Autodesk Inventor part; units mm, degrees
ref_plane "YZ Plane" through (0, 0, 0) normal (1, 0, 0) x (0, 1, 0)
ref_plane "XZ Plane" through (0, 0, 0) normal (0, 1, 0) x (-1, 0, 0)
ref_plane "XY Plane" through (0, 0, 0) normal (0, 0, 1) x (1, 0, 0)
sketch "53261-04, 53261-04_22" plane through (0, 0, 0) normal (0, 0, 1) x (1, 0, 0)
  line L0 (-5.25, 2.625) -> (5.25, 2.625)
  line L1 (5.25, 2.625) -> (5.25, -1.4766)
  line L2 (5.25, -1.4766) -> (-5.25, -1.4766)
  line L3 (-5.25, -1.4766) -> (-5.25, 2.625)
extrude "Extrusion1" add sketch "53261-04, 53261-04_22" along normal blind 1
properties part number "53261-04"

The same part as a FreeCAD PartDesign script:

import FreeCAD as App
import Part
import Sketcher

V = App.Vector
Q = App.Units.Quantity


def add_polygon(sketch, points):
    """Adds a closed chain of lines whose ends are joined by coincident constraints."""
    first, n = sketch.GeometryCount, len(points)
    for a, b in zip(points, points[1:] + points[:1]):
        sketch.addGeometry(Part.LineSegment(App.Vector(*a, 0), App.Vector(*b, 0)), False)
    for i in range(n):
        sketch.addConstraint(Sketcher.Constraint("Coincident", first + i, 2, first + (i + 1) % n, 1))

doc = App.newDocument("Part")
body = doc.addObject("PartDesign::Body", "Body")

# Sketch on XY plane
sketch1 = body.newObject("Sketcher::SketchObject", "Sketch")
sketch1.AttachmentSupport = (doc.getObject("XY_Plane"), [""])
sketch1.MapMode = "FlatFace"
add_polygon(sketch1, [(5.2, 2.6), (-5.2, 2.6), (-5.2, -1.5), (5.2, -1.5)])  # lines 0-3
sketch1.addConstraint([
    Sketcher.Constraint("Horizontal", 0),
    Sketcher.Constraint("Vertical", 1),
    Sketcher.Constraint("Horizontal", 2),
    Sketcher.Constraint("Vertical", 3),
    Sketcher.Constraint("DistanceX", 0, 2, 0, 1, Q("10.5 mm")),
    Sketcher.Constraint("DistanceX", 0, 2, -1, 1, Q("5.25 mm")),
    Sketcher.Constraint("DistanceY", 1, 2, 1, 1, Q("4.1016 mm")),
    Sketcher.Constraint("DistanceY", -1, 1, 0, 2, Q("2.625 mm")),
])
pad1 = body.newObject("PartDesign::Pad", "Pad")
pad1.Profile = sketch1
pad1.Length = 1

doc.recompute()
